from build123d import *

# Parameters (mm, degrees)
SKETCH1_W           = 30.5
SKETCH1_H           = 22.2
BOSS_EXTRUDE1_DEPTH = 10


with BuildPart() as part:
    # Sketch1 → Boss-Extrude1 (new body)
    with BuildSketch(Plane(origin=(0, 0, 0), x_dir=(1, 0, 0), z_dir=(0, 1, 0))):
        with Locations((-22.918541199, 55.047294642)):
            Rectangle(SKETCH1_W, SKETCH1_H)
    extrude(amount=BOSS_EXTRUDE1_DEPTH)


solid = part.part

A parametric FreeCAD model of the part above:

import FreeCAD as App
import Part
import Sketcher
Q = App.Units.Quantity

doc = App.newDocument("Part")
body = doc.addObject("PartDesign::Body", "Body")

# Sketch on XZ plane
sketch1 = body.newObject("Sketcher::SketchObject", "Sketch")
sketch1.AttachmentSupport = (doc.getObject("XZ_Plane"), [""])
sketch1.MapMode = "FlatFace"
sketch1.addGeometry([
    Part.LineSegment(App.Vector(-38, -66, 0), App.Vector(-38, -44, 0)),
    Part.LineSegment(App.Vector(-38, -44, 0), App.Vector(-8, -44, 0)),
    Part.LineSegment(App.Vector(-8, -44, 0), App.Vector(-8, -66, 0)),
    Part.LineSegment(App.Vector(-8, -66, 0), App.Vector(-38, -66, 0)),
], False)
sketch1.addConstraint([
    Sketcher.Constraint("Coincident", 0, 2, 1, 1),
    Sketcher.Constraint("Coincident", 1, 2, 2, 1),
    Sketcher.Constraint("Coincident", 2, 2, 3, 1),
    Sketcher.Constraint("Coincident", 3, 2, 0, 1),
    Sketcher.Constraint("Vertical", 0),
    Sketcher.Constraint("Horizontal", 1),
    Sketcher.Constraint("Vertical", 2),
    Sketcher.Constraint("Horizontal", 3),
    Sketcher.Constraint("DistanceX", 1, 1, 1, 2, Q("30.5 mm")),
    Sketcher.Constraint("DistanceY", 0, 1, 0, 2, Q("22.2 mm")),
    Sketcher.Constraint("DistanceX", 0, 2, -1, 1, Q("38.168541 mm")),
    Sketcher.Constraint("DistanceY", 0, 2, -1, 1, Q("43.947295 mm")),
])
pad1 = body.newObject("PartDesign::Pad", "Pad")
pad1.Profile = sketch1
pad1.Length = 10
pad1.Reversed = True

doc.recompute()
